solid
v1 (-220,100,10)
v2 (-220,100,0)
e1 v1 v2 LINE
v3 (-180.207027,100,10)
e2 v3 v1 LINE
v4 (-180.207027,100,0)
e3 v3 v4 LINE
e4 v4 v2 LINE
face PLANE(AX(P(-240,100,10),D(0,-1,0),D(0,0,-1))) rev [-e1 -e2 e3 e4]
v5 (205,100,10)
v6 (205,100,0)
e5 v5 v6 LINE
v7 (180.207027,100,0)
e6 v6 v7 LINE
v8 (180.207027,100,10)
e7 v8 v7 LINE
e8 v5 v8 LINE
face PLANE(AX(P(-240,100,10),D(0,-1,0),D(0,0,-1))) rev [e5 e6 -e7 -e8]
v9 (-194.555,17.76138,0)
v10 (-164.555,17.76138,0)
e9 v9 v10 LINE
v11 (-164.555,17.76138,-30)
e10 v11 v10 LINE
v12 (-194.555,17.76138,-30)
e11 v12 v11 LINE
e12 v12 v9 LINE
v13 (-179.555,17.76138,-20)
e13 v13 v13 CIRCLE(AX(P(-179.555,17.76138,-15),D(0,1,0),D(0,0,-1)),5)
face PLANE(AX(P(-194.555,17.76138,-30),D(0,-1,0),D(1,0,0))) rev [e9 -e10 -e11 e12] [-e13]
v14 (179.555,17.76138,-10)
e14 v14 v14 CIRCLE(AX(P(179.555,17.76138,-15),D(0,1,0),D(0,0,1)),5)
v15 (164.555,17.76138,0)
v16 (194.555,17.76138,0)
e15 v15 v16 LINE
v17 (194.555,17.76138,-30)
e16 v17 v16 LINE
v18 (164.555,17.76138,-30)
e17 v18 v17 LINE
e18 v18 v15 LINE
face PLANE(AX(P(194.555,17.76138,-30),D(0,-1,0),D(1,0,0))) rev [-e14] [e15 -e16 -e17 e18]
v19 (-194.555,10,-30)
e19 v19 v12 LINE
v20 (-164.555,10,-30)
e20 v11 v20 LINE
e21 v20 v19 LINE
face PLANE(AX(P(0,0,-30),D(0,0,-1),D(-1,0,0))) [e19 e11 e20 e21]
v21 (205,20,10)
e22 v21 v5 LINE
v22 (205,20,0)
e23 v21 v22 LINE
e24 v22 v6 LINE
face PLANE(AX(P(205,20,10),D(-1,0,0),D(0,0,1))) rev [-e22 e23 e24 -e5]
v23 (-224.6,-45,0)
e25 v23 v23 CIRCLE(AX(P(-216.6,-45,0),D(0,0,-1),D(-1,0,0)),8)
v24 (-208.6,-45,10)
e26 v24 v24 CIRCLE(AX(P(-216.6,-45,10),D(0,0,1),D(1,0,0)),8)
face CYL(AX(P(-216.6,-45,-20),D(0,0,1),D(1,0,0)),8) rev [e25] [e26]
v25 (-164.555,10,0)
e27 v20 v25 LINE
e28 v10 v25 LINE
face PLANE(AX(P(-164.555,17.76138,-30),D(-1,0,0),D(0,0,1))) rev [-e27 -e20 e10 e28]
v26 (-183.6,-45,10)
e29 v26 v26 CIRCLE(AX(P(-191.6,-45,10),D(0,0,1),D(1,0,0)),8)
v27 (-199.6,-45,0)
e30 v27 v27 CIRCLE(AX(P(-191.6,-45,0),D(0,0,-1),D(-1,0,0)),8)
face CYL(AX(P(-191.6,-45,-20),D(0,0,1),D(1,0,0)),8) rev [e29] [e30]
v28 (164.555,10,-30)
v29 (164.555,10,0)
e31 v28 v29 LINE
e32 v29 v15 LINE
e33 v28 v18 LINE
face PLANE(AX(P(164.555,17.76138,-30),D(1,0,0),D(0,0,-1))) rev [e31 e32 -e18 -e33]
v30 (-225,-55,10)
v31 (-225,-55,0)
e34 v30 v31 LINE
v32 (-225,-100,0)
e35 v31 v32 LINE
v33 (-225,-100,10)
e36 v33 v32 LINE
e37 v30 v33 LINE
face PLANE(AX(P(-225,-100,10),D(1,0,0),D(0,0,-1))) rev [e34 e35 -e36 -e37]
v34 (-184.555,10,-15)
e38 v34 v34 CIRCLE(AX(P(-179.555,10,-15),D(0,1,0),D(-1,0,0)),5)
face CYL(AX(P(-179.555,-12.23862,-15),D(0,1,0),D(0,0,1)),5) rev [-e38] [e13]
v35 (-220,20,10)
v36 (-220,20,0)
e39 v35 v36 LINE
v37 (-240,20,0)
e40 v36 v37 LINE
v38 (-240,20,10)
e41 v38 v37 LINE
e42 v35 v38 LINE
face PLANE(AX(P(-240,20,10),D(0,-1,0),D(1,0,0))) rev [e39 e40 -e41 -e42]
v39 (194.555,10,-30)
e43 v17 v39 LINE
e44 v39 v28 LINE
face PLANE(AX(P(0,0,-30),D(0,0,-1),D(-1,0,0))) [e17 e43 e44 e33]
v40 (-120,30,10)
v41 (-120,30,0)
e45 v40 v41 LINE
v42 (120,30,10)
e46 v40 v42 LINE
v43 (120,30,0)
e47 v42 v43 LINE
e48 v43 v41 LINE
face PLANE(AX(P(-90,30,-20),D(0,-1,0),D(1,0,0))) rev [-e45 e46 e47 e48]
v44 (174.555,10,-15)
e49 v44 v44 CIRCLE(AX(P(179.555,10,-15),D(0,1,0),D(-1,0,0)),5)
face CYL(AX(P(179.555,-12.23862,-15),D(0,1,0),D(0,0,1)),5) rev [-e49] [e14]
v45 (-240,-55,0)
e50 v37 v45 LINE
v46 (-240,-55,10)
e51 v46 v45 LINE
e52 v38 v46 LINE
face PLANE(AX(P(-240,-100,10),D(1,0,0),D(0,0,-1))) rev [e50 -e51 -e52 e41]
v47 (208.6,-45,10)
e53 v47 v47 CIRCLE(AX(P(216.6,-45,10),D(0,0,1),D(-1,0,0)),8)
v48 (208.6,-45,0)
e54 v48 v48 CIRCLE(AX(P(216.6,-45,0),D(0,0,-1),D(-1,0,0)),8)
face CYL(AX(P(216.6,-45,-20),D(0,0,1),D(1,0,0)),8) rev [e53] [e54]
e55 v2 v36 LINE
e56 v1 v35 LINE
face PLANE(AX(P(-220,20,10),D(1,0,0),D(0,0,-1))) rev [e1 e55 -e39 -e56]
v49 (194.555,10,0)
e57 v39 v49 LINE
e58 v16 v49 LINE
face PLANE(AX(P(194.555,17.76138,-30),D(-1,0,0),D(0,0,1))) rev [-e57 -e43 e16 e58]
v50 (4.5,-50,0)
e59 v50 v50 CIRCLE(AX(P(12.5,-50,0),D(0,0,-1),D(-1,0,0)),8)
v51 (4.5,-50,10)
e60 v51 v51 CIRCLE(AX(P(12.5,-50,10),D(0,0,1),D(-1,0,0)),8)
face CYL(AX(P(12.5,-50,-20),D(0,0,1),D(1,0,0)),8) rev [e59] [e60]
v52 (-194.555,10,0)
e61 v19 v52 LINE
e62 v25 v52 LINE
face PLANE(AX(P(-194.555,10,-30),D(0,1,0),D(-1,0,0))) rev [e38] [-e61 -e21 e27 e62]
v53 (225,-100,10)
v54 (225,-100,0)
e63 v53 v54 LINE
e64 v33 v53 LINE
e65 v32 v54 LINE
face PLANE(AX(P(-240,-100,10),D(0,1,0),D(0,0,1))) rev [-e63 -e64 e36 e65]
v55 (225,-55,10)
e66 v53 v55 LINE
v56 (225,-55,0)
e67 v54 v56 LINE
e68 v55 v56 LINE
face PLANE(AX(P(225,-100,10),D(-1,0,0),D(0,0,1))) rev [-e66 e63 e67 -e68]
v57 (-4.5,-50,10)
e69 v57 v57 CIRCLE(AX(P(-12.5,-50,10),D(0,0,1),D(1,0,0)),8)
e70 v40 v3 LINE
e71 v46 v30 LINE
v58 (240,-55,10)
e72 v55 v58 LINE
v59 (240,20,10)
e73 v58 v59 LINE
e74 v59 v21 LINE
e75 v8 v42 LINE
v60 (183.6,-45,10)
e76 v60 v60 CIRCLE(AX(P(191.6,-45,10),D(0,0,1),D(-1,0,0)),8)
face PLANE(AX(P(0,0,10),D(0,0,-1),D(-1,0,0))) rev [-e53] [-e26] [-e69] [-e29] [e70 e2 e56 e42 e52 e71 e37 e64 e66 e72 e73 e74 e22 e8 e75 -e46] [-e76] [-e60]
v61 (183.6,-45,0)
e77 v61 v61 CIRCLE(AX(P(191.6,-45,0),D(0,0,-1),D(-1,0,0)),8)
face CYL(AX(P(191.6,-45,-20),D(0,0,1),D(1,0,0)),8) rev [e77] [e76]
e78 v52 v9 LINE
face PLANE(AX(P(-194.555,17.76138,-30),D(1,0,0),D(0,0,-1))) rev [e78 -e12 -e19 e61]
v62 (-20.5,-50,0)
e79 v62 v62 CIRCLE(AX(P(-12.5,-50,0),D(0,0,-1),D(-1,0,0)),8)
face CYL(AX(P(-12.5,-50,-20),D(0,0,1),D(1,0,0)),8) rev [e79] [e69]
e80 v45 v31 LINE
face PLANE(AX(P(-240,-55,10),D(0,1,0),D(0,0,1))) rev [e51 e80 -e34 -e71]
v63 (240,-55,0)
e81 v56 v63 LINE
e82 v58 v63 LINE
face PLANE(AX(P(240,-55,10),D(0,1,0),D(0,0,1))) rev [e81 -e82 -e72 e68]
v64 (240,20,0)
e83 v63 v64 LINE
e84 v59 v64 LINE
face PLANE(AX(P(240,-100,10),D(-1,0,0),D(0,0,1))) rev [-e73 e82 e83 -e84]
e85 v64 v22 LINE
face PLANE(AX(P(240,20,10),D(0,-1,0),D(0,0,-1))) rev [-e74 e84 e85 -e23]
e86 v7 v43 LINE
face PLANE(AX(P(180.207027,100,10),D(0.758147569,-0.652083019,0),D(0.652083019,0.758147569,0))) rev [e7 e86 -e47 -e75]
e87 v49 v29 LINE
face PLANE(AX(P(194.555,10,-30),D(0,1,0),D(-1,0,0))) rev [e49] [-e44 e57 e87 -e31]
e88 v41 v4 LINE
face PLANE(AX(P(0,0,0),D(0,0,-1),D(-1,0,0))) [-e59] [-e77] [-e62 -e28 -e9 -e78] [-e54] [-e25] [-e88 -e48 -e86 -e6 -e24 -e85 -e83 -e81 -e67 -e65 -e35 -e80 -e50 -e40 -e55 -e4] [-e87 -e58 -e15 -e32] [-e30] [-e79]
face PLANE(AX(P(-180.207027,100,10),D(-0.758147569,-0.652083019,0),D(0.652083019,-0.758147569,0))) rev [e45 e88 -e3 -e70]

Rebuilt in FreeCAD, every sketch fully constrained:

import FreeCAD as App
import Part
import Sketcher
from FreeCAD import Vector
Q = App.Units.Quantity

doc = App.newDocument("Part")
body = doc.addObject("PartDesign::Body", "Body")

# Sketch on XY plane
sketch1 = doc.addObject("Sketcher::SketchObject", "Sketch")
body.addObject(sketch1)
sketch1.AttachmentSupport = (doc.XY_Plane, [""])
sketch1.MapMode = "FlatFace"
sketch1.addGeometry([
    Part.LineSegment(Vector(-240, 100, 0), Vector(-240, -100, 0)),
    Part.LineSegment(Vector(-240, -100, 0), Vector(240, -100, 0)),
    Part.LineSegment(Vector(240, -100, 0), Vector(240, 100, 0)),
    Part.LineSegment(Vector(240, 100, 0), Vector(-240, 100, 0)),
], False)
sketch1.addConstraint([
    Sketcher.Constraint("Coincident", 0, 2, 1, 1),
    Sketcher.Constraint("Coincident", 1, 2, 2, 1),
    Sketcher.Constraint("Coincident", 2, 2, 3, 1),
    Sketcher.Constraint("Coincident", 3, 2, 0, 1),
    Sketcher.Constraint("Vertical", 0),
    Sketcher.Constraint("Horizontal", 1),
    Sketcher.Constraint("Vertical", 2),
    Sketcher.Constraint("Horizontal", 3),
    Sketcher.Constraint("Symmetric", 0, 2, 2, 2, -1, 1),
    Sketcher.Constraint("DistanceX", 1, 1, 1, 2, Q("480 mm")),
    Sketcher.Constraint("DistanceY", 0, 2, 0, 1, Q("200 mm")),
])
pad1 = doc.addObject("PartDesign::Pad", "Pad")
body.addObject(pad1)
pad1.Profile = sketch1
pad1.Length = 10

# Sketch on XY plane
sketch2 = doc.addObject("Sketcher::SketchObject", "Sketch001")
body.addObject(sketch2)
sketch2.AttachmentSupport = (doc.XY_Plane, [""])
sketch2.MapMode = "FlatFace"
sketch2.addGeometry([
    Part.LineSegment(Vector(194.555, 17.76138, 0), Vector(194.555, 10, 0)),  # 0
    Part.LineSegment(Vector(194.555, 10, 0), Vector(164.555, 10, 0)),  # 1
    Part.LineSegment(Vector(164.555, 10, 0), Vector(164.555, 17.76138, 0)),  # 2
    Part.LineSegment(Vector(164.555, 17.76138, 0), Vector(194.555, 17.76138, 0)),  # 3
    Part.LineSegment(Vector(-164.555, 17.76138, 0), Vector(-164.555, 10, 0)),  # 4
    Part.LineSegment(Vector(-164.555, 10, 0), Vector(-194.555, 10, 0)),  # 5
    Part.LineSegment(Vector(-194.555, 10, 0), Vector(-194.555, 17.76138, 0)),  # 6
    Part.LineSegment(Vector(-194.555, 17.76138, 0), Vector(-164.555, 17.76138, 0)),  # 7
], False)
sketch2.addConstraint([
    Sketcher.Constraint("Coincident", 0, 2, 1, 1),
    Sketcher.Constraint("Coincident", 1, 2, 2, 1),
    Sketcher.Constraint("Coincident", 2, 2, 3, 1),
    Sketcher.Constraint("Coincident", 3, 2, 0, 1),
    Sketcher.Constraint("Coincident", 4, 2, 5, 1),
    Sketcher.Constraint("Coincident", 5, 2, 6, 1),
    Sketcher.Constraint("Coincident", 6, 2, 7, 1),
    Sketcher.Constraint("Coincident", 7, 2, 4, 1),
    Sketcher.Constraint("Vertical", 0),
    Sketcher.Constraint("Horizontal", 1),
    Sketcher.Constraint("Vertical", 2),
    Sketcher.Constraint("Horizontal", 3),
    Sketcher.Constraint("Vertical", 4),
    Sketcher.Constraint("Horizontal", 5),
    Sketcher.Constraint("Vertical", 6),
    Sketcher.Constraint("Horizontal", 7),
    Sketcher.Constraint("Symmetric", 1, 2, 4, 2, -2),
    Sketcher.Constraint("Symmetric", 3, 2, 6, 2, -2),
    Sketcher.Constraint("DistanceX", 1, 2, 1, 1, Q("30 mm")),
    Sketcher.Constraint("DistanceY", -1, 1, 0, 2, Q("10 mm")),
    Sketcher.Constraint("DistanceX", 4, 2, 1, 2, Q("329.11 mm")),
    Sketcher.Constraint("DistanceY", 0, 2, 0, 1, Q("7.76138 mm")),
])
pad2 = doc.addObject("PartDesign::Pad", "Pad001")
body.addObject(pad2)
pad2.Profile = sketch2
pad2.Length = 30
pad2.Reversed = True

# Sketch on XZ plane
sketch3 = doc.addObject("Sketcher::SketchObject", "Sketch002")
body.addObject(sketch3)
sketch3.AttachmentSupport = (doc.XZ_Plane, [""])
sketch3.MapMode = "FlatFace"
sketch3.AttachmentOffset = App.Placement(Vector(0, 0, -17.76138), App.Rotation())
sketch3.addGeometry([
    Part.Circle(Vector(179.555, -15, 0), Vector(0, 0, 1), 5),
    Part.Circle(Vector(-179.555, -15, 0), Vector(0, 0, 1), 5),
], False)
sketch3.addConstraint([
    Sketcher.Constraint("Equal", 0, 1),
    Sketcher.Constraint("Symmetric", 0, 3, 1, 3, -2),
    Sketcher.Constraint("Diameter", 0, Q("10 mm")),
    Sketcher.Constraint("DistanceY", 0, 3, -1, 1, Q("15 mm")),
    Sketcher.Constraint("DistanceX", 1, 3, 0, 3, Q("359.11 mm")),
])
pocket1 = doc.addObject("PartDesign::Pocket", "Pocket")
body.addObject(pocket1)
pocket1.Profile = sketch3
pocket1.Length = 30
pocket1.Reversed = True

# Sketch on XY plane
sketch4 = doc.addObject("Sketcher::SketchObject", "Sketch003")
body.addObject(sketch4)
sketch4.AttachmentSupport = (doc.XY_Plane, [""])
sketch4.MapMode = "FlatFace"
sketch4.AttachmentOffset = App.Placement(Vector(0, 0, 10), App.Rotation())
sketch4.addGeometry([
    Part.Circle(Vector(-12.5, -50, 0), Vector(0, 0, 1), 8),  # 0
    Part.Circle(Vector(-216.6, -45, 0), Vector(0, 0, 1), 8),  # 1
    Part.Circle(Vector(-191.6, -45, 0), Vector(0, 0, 1), 8),  # 2
    Part.Circle(Vector(12.5, -50, 0), Vector(0, 0, 1), 8),  # 3
    Part.Circle(Vector(191.6, -45, 0), Vector(0, 0, 1), 8),  # 4
    Part.Circle(Vector(216.6, -45, 0), Vector(0, 0, 1), 8),  # 5
    Part.LineSegment(Vector(90, 30, 0), Vector(140, 100, 0)),  # 6
    Part.LineSegment(Vector(140, 100, 0), Vector(-140, 100, 0)),  # 7
    Part.LineSegment(Vector(-140, 100, 0), Vector(-90, 30, 0)),  # 8
    Part.LineSegment(Vector(-90, 30, 0), Vector(90, 30, 0)),  # 9
], False)
sketch4.addConstraint([
    Sketcher.Constraint("Coincident", 6, 2, 7, 1),
    Sketcher.Constraint("Coincident", 7, 2, 8, 1),
    Sketcher.Constraint("Coincident", 8, 2, 9, 1),
    Sketcher.Constraint("Coincident", 9, 2, 6, 1),
    Sketcher.Constraint("Horizontal", 7),
    Sketcher.Constraint("Horizontal", 9),
    Sketcher.Constraint("Equal", 0, 1),
    Sketcher.Constraint("Equal", 1, 2),
    Sketcher.Constraint("Equal", 2, 3),
    Sketcher.Constraint("Equal", 3, 4),
    Sketcher.Constraint("Equal", 4, 5),
    Sketcher.Constraint("Symmetric", 0, 3, 3, 3, -2),
    Sketcher.Constraint("Symmetric", 2, 3, 4, 3, -2),
    Sketcher.Constraint("Symmetric", 1, 3, 5, 3, -2),
    Sketcher.Constraint("Horizontal", 1, 3, 2, 3),
    Sketcher.Constraint("Equal", 6, 8),
    Sketcher.Constraint("Diameter", 0, Q("16 mm")),
    Sketcher.Constraint("DistanceX", 7, 2, 7, 1, Q("280 mm")),
    Sketcher.Constraint("DistanceX", 9, 1, 9, 2, Q("180 mm")),
    Sketcher.Constraint("DistanceY", 0, 3, -1, 1, Q("50 mm")),
    Sketcher.Constraint("DistanceY", 1, 3, -1, 1, Q("45 mm")),
    Sketcher.Constraint("DistanceX", -1, 1, 6, 2, Q("140 mm")),
    Sketcher.Constraint("DistanceY", -1, 1, 6, 2, Q("100 mm")),
    Sketcher.Constraint("DistanceY", -1, 1, 8, 2, Q("30 mm")),
    Sketcher.Constraint("DistanceX", 1, 3, 2, 3, Q("25 mm")),
    Sketcher.Constraint("DistanceX", 0, 3, 3, 3, Q("25 mm")),
    Sketcher.Constraint("DistanceX", 1, 3, -1, 1, Q("216.6 mm")),
])
pocket2 = doc.addObject("PartDesign::Pocket", "Pocket001")
body.addObject(pocket2)
pocket2.Profile = sketch4
pocket2.Length = 30

# Sketch on XY plane
sketch5 = doc.addObject("Sketcher::SketchObject", "Sketch004")
body.addObject(sketch5)
sketch5.AttachmentSupport = (doc.XY_Plane, [""])
sketch5.MapMode = "FlatFace"
sketch5.addGeometry([
    Part.LineSegment(Vector(240, -55, 0), Vector(240, -100, 0)),  # 0
    Part.LineSegment(Vector(240, -100, 0), Vector(225, -100, 0)),  # 1
    Part.LineSegment(Vector(225, -100, 0), Vector(225, -55, 0)),  # 2
    Part.LineSegment(Vector(225, -55, 0), Vector(240, -55, 0)),  # 3
    Part.LineSegment(Vector(-225, -55, 0), Vector(-225, -100, 0)),  # 4
    Part.LineSegment(Vector(-225, -100, 0), Vector(-240, -100, 0)),  # 5
    Part.LineSegment(Vector(-240, -100, 0), Vector(-240, -55, 0)),  # 6
    Part.LineSegment(Vector(-240, -55, 0), Vector(-225, -55, 0)),  # 7
    Part.LineSegment(Vector(-220, 100, 0), Vector(-220, 20, 0)),  # 8
    Part.LineSegment(Vector(-220, 20, 0), Vector(-240, 20, 0)),  # 9
    Part.LineSegment(Vector(-240, 20, 0), Vector(-240, 100, 0)),  # 10
    Part.LineSegment(Vector(-240, 100, 0), Vector(-220, 100, 0)),  # 11
    Part.LineSegment(Vector(240, 100, 0), Vector(240, 20, 0)),  # 12
    Part.LineSegment(Vector(240, 20, 0), Vector(205, 20, 0)),  # 13
    Part.LineSegment(Vector(205, 20, 0), Vector(205, 100, 0)),  # 14
    Part.LineSegment(Vector(205, 100, 0), Vector(240, 100, 0)),  # 15
    Part.LineSegment(Vector(-180.207027, 100, 0), Vector(-114.970016, 100, 0)),  # 16
    Part.LineSegment(Vector(-114.970016, 100, 0), Vector(-90, 30, 0)),  # 17
    Part.LineSegment(Vector(-90, 30, 0), Vector(-120, 30, 0)),  # 18
    Part.LineSegment(Vector(-120, 30, 0), Vector(-180.207027, 100, 0)),  # 19
    Part.LineSegment(Vector(120, 30, 0), Vector(90, 30, 0)),  # 20
    Part.LineSegment(Vector(90, 30, 0), Vector(114.970016, 100, 0)),  # 21
    Part.LineSegment(Vector(114.970016, 100, 0), Vector(180.207027, 100, 0)),  # 22
    Part.LineSegment(Vector(180.207027, 100, 0), Vector(120, 30, 0)),  # 23
], False)
sketch5.addConstraint([
    Sketcher.Constraint("Coincident", 0, 2, 1, 1),
    Sketcher.Constraint("Coincident", 1, 2, 2, 1),
    Sketcher.Constraint("Coincident", 2, 2, 3, 1),
    Sketcher.Constraint("Coincident", 3, 2, 0, 1),
    Sketcher.Constraint("Coincident", 4, 2, 5, 1),
    Sketcher.Constraint("Coincident", 5, 2, 6, 1),
    Sketcher.Constraint("Coincident", 6, 2, 7, 1),
    Sketcher.Constraint("Coincident", 7, 2, 4, 1),
    Sketcher.Constraint("Coincident", 8, 2, 9, 1),
    Sketcher.Constraint("Coincident", 9, 2, 10, 1),
    Sketcher.Constraint("Coincident", 10, 2, 11, 1),
    Sketcher.Constraint("Coincident", 11, 2, 8, 1),
    Sketcher.Constraint("Coincident", 12, 2, 13, 1),
    Sketcher.Constraint("Coincident", 13, 2, 14, 1),
    Sketcher.Constraint("Coincident", 14, 2, 15, 1),
    Sketcher.Constraint("Coincident", 15, 2, 12, 1),
    Sketcher.Constraint("Coincident", 16, 2, 17, 1),
    Sketcher.Constraint("Coincident", 17, 2, 18, 1),
    Sketcher.Constraint("Coincident", 18, 2, 19, 1),
    Sketcher.Constraint("Coincident", 19, 2, 16, 1),
    Sketcher.Constraint("Coincident", 20, 2, 21, 1),
    Sketcher.Constraint("Coincident", 21, 2, 22, 1),
    Sketcher.Constraint("Coincident", 22, 2, 23, 1),
    Sketcher.Constraint("Coincident", 23, 2, 20, 1),
    Sketcher.Constraint("Vertical", 0),
    Sketcher.Constraint("Horizontal", 1),
    Sketcher.Constraint("Vertical", 2),
    Sketcher.Constraint("Horizontal", 3),
    Sketcher.Constraint("Vertical", 4),
    Sketcher.Constraint("Horizontal", 5),
    Sketcher.Constraint("Vertical", 6),
    Sketcher.Constraint("Horizontal", 7),
    Sketcher.Constraint("Vertical", 8),
    Sketcher.Constraint("Horizontal", 9),
    Sketcher.Constraint("Vertical", 10),
    Sketcher.Constraint("Horizontal", 11),
    Sketcher.Constraint("Vertical", 12),
    Sketcher.Constraint("Horizontal", 13),
    Sketcher.Constraint("Vertical", 14),
    Sketcher.Constraint("Horizontal", 15),
    Sketcher.Constraint("Horizontal", 16),
    Sketcher.Constraint("Horizontal", 18),
    Sketcher.Constraint("Horizontal", 20),
    Sketcher.Constraint("Horizontal", 22),
    Sketcher.Constraint("Symmetric", 0, 2, 10, 2, -1, 1),
    Sketcher.Constraint("Symmetric", 5, 2, 15, 2, -1, 1),
    Sketcher.Constraint("Symmetric", 1, 2, 4, 2, -2),
    Sketcher.Constraint("Symmetric", 3, 2, 6, 2, -2),
    Sketcher.Constraint("Symmetric", 17, 2, 20, 2, -2),
    Sketcher.Constraint("Symmetric", 16, 2, 21, 2, -2),
    Sketcher.Constraint("Horizontal", 9, 2, 12, 2),
    Sketcher.Constraint("Horizontal", 15, 2, 16, 2),
    Sketcher.Constraint("Equal", 18, 20),
    Sketcher.Constraint("Equal", 16, 22),
    Sketcher.Constraint("DistanceX", 1, 2, 1, 1, Q("15 mm")),
    Sketcher.Constraint("DistanceX", 9, 2, 9, 1, Q("20 mm")),
    Sketcher.Constraint("DistanceX", 13, 2, 13, 1, Q("35 mm")),
    Sketcher.Constraint("DistanceX", 18, 2, 18, 1, Q("30 mm")),
    Sketcher.Constraint("DistanceY", 0, 2, 0, 1, Q("45 mm")),
    Sketcher.Constraint("DistanceY", 8, 2, 8, 1, Q("80 mm")),
    Sketcher.Constraint("DistanceX", -1, 1, 0, 2, Q("240 mm")),
    Sketcher.Constraint("DistanceY", 0, 2, -1, 1, Q("100 mm")),
    Sketcher.Constraint("DistanceX", 17, 2, -1, 1, Q("90 mm")),
    Sketcher.Constraint("DistanceY", -1, 1, 17, 2, Q("30 mm")),
    Sketcher.Constraint("DistanceX", 16, 1, 16, 2, Q("65.237011 mm")),
    Sketcher.Constraint("Distance", 19, Q("92.33031 mm")),
])
pocket3 = doc.addObject("PartDesign::Pocket", "Pocket002")
body.addObject(pocket3)
pocket3.Profile = sketch5
pocket3.Length = 10
pocket3.Reversed = True

doc.recompute()
